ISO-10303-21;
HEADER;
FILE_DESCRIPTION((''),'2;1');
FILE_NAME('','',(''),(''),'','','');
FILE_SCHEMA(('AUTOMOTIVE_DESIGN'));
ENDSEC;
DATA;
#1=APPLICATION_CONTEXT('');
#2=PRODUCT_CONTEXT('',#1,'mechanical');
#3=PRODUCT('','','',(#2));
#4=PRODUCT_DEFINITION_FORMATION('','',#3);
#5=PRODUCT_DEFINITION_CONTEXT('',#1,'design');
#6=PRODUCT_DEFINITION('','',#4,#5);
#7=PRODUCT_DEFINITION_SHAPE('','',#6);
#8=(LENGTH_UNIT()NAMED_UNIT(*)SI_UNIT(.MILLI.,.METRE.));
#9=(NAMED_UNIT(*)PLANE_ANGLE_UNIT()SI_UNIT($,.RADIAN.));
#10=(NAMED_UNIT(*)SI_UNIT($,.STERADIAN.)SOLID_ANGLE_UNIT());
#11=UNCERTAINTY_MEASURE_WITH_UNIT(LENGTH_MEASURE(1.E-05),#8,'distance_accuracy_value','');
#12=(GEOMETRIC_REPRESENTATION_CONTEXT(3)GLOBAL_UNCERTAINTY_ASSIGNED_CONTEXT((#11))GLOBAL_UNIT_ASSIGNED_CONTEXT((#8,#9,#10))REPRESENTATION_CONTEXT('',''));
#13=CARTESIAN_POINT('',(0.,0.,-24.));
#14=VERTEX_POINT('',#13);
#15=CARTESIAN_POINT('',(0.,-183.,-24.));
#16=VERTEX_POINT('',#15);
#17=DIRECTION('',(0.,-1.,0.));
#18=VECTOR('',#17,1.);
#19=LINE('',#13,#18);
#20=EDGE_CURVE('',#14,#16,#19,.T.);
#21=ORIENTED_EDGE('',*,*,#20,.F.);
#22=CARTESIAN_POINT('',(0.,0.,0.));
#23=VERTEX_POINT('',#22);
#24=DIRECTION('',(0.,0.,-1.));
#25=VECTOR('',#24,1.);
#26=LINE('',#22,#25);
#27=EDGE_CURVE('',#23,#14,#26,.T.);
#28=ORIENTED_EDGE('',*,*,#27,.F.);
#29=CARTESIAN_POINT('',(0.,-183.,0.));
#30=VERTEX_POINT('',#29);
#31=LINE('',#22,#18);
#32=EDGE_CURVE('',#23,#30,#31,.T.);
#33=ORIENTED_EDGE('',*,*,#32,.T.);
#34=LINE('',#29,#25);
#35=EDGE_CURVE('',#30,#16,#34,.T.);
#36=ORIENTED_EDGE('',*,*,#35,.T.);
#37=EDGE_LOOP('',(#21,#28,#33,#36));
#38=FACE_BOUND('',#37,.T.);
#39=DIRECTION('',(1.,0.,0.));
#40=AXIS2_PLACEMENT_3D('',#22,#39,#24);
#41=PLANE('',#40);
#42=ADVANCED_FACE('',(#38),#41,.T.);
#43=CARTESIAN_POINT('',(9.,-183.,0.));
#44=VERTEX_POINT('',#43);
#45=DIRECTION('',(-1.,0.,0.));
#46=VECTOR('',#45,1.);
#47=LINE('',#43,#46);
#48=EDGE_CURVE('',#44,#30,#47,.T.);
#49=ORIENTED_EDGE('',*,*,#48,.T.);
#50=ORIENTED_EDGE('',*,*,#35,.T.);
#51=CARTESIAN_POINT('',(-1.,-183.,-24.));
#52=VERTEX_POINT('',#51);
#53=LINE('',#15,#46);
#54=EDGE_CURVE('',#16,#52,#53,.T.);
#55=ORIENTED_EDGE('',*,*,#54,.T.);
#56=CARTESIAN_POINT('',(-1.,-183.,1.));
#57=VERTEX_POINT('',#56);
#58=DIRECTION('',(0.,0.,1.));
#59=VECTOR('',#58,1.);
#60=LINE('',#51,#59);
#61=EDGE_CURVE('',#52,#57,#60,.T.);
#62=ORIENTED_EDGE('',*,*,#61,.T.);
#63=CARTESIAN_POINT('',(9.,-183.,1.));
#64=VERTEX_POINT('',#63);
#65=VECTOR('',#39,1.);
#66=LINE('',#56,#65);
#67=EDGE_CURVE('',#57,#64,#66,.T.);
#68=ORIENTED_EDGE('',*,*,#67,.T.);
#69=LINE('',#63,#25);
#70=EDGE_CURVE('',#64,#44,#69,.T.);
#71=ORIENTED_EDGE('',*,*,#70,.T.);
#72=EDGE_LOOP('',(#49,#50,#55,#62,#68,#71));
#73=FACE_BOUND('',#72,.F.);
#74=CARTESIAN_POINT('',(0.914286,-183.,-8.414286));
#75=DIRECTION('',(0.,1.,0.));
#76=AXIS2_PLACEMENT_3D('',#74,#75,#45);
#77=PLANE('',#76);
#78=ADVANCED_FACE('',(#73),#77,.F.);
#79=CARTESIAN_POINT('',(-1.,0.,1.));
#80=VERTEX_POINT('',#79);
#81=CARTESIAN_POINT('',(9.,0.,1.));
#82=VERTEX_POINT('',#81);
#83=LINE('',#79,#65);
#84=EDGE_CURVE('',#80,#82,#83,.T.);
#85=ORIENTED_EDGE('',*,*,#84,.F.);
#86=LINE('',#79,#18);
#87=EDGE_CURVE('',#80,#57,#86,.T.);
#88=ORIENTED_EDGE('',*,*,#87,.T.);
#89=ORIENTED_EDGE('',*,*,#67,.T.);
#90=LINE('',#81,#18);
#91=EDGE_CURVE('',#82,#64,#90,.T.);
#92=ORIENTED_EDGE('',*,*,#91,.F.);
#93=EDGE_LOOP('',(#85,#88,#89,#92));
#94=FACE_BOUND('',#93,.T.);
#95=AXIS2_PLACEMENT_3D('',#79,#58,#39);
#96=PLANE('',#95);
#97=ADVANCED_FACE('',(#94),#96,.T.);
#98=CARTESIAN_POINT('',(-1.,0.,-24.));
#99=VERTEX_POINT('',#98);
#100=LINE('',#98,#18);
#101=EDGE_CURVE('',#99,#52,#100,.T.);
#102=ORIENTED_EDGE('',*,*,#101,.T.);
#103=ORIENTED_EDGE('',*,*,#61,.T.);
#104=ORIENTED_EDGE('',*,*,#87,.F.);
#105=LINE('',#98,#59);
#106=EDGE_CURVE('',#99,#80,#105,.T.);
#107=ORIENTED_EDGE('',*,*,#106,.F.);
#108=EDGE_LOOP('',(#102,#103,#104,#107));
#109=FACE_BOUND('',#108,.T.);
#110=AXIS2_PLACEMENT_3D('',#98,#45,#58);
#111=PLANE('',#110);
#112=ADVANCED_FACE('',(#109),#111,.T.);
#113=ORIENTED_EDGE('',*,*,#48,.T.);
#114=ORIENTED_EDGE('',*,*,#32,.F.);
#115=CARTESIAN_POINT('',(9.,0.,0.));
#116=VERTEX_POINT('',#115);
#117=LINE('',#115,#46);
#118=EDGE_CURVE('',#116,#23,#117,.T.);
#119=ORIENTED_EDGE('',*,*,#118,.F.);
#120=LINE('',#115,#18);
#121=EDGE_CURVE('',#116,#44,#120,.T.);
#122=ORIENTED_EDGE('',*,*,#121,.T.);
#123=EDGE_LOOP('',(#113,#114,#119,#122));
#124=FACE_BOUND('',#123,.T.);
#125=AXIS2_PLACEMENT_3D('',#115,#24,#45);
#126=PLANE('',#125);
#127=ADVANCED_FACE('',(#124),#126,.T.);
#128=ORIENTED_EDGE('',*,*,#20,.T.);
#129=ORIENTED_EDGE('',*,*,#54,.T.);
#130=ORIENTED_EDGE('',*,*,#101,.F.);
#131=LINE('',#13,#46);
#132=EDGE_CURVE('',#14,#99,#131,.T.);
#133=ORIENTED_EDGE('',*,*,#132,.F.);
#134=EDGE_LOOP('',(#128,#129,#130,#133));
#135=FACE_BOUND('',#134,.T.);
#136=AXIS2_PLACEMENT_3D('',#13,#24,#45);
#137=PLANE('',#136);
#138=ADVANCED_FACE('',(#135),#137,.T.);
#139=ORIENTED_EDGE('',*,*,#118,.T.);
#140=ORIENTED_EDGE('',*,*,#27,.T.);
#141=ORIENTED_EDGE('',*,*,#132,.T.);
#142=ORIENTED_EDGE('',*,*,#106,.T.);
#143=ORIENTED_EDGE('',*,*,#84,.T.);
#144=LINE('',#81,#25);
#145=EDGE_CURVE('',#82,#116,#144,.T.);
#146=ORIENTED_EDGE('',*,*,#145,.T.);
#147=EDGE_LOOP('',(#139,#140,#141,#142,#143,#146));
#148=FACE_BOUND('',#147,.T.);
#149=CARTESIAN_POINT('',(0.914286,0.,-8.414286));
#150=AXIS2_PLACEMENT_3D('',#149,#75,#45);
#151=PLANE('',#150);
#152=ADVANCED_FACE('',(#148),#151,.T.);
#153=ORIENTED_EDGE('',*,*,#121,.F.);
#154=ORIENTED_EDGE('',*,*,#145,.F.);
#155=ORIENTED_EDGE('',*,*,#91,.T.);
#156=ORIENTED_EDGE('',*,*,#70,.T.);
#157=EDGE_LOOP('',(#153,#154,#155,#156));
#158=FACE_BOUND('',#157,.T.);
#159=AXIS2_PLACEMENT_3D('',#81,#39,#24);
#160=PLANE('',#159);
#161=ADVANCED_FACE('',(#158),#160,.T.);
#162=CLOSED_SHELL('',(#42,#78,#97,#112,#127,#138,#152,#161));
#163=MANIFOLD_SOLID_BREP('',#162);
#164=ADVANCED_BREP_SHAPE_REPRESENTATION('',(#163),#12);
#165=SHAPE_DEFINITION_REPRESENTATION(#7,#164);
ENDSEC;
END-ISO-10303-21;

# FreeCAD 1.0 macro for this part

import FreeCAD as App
import Part
import Sketcher


def add_polygon(sketch, points):
    """Adds a closed chain of lines whose ends are joined by coincident constraints."""
    first, n = sketch.GeometryCount, len(points)
    for a, b in zip(points, points[1:] + points[:1]):
        sketch.addGeometry(Part.LineSegment(App.Vector(*a, 0), App.Vector(*b, 0)), False)
    for i in range(n):
        sketch.addConstraint(Sketcher.Constraint("Coincident", first + i, 2, first + (i + 1) % n, 1))

doc = App.newDocument("Part")
body = doc.addObject("PartDesign::Body", "Body")

sketch1 = body.newObject("Sketcher::SketchObject", "Sketch")
sketch1.AttachmentSupport = (doc.getObject("XZ_Plane"), [""])
sketch1.MapMode = "FlatFace"
add_polygon(sketch1, [(0, 0), (9, 0), (9, 1), (-1, 1), (-1, -24), (0, -24)])
sketch1.addConstraint([
    Sketcher.Constraint("Horizontal", 0),
    Sketcher.Constraint("Vertical", 1),
    Sketcher.Constraint("Horizontal", 2),
    Sketcher.Constraint("Vertical", 3),
    Sketcher.Constraint("Horizontal", 4),
    Sketcher.Constraint("Vertical", 5),
    Sketcher.Constraint("Coincident", 5, 2, -1, 1),
    Sketcher.Constraint("Equal", 4, 1),
    Sketcher.Constraint("DistanceX", 0, 1, 0, 2, 9.0),
    Sketcher.Constraint("DistanceX", 2, 2, 2, 1, 10.0),
    Sketcher.Constraint("DistanceY", 3, 2, 3, 1, 25.0),
])
pad1 = body.newObject("PartDesign::Pad", "Pad")
pad1.Profile = sketch1
pad1.Length = 183

doc.recompute()
